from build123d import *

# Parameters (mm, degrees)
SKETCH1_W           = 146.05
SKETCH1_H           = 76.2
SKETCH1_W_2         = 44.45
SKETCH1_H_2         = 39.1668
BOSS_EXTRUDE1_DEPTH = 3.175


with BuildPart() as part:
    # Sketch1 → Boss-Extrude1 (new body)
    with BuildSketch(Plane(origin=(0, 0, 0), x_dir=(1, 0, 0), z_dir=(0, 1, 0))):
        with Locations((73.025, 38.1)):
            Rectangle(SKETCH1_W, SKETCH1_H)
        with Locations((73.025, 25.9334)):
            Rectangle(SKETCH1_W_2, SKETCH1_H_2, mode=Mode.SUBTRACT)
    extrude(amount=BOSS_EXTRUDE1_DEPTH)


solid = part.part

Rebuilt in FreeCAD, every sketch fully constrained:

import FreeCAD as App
import Part
import Sketcher

V = App.Vector
Q = App.Units.Quantity

doc = App.newDocument("Part")
params = doc.addObject("Spreadsheet::Sheet", "Params")
for row, (alias, value) in enumerate([
    ("sketch1_height", "3 in"),
    ("sketch1_width", "5.75 in"),
    ("sketch1_height2", "1.542 in"),
    ("pad1_length", "0.125 in"),
], start=1):
    params.set(f"A{row}", alias)
    params.set(f"B{row}", "=" + value)
    params.setAlias(f"B{row}", alias)

body = doc.addObject("PartDesign::Body", "Body")

# Sketch on XZ plane
sketch1 = body.newObject("Sketcher::SketchObject", "Sketch")
sketch1.AttachmentSupport = (doc.getObject("XZ_Plane"), [""])
sketch1.MapMode = "FlatFace"
sketch1.addGeometry(Part.LineSegment(V(0, -76, 0), V(0, 0, 0)), False)
sketch1.addGeometry(Part.LineSegment(V(0, 0, 0), V(146, 0, 0)), False)
sketch1.addGeometry(Part.LineSegment(V(146, 0, 0), V(146, -76, 0)), False)
sketch1.addGeometry(Part.LineSegment(V(146, -76, 0), V(0, -76, 0)), False)
sketch1.addGeometry(Part.LineSegment(V(95, -6, 0), V(51, -6, 0)), False)
sketch1.addGeometry(Part.LineSegment(V(51, -6, 0), V(51, -46, 0)), False)
sketch1.addGeometry(Part.LineSegment(V(51, -46, 0), V(95, -46, 0)), False)
sketch1.addGeometry(Part.LineSegment(V(95, -46, 0), V(95, -6, 0)), False)
sketch1.addConstraint(Sketcher.Constraint("Coincident", 0, 2, 1, 1))
sketch1.addConstraint(Sketcher.Constraint("Coincident", 1, 2, 2, 1))
sketch1.addConstraint(Sketcher.Constraint("Coincident", 2, 2, 3, 1))
sketch1.addConstraint(Sketcher.Constraint("Coincident", 3, 2, 0, 1))
sketch1.addConstraint(Sketcher.Constraint("Coincident", 4, 2, 5, 1))
sketch1.addConstraint(Sketcher.Constraint("Coincident", 5, 2, 6, 1))
sketch1.addConstraint(Sketcher.Constraint("Coincident", 6, 2, 7, 1))
sketch1.addConstraint(Sketcher.Constraint("Coincident", 7, 2, 4, 1))
sketch1.addConstraint(Sketcher.Constraint("Vertical", 0))
sketch1.addConstraint(Sketcher.Constraint("Horizontal", 1))
sketch1.addConstraint(Sketcher.Constraint("Vertical", 2))
sketch1.addConstraint(Sketcher.Constraint("Horizontal", 3))
sketch1.addConstraint(Sketcher.Constraint("Horizontal", 4))
sketch1.addConstraint(Sketcher.Constraint("Vertical", 5))
sketch1.addConstraint(Sketcher.Constraint("Horizontal", 6))
sketch1.addConstraint(Sketcher.Constraint("Vertical", 7))
sketch1.addConstraint(Sketcher.Constraint("Coincident", 0, 2, -1, 1))
sketch1.addConstraint(Sketcher.Constraint("DistanceY", 0, 1, 0, 2, Q("3 in")))
sketch1.addConstraint(Sketcher.Constraint("DistanceX", -1, 1, 4, 2, Q("2 in")))
sketch1.addConstraint(Sketcher.Constraint("DistanceX", 6, 2, 2, 2, Q("2 in")))
sketch1.addConstraint(Sketcher.Constraint("DistanceX", 1, 1, 1, 2, Q("5.75 in")))
sketch1.addConstraint(Sketcher.Constraint("DistanceY", 5, 2, 5, 1, Q("1.542 in")))
sketch1.addConstraint(Sketcher.Constraint("DistanceY", 4, 2, -1, 1, Q("0.25 in")))
sketch1.setExpression("Constraints[17]", "Params.sketch1_height")
sketch1.setExpression("Constraints[20]", "Params.sketch1_width")
sketch1.setExpression("Constraints[21]", "Params.sketch1_height2")
pad1 = body.newObject("PartDesign::Pad", "Pad")
pad1.Profile = sketch1
pad1.setExpression("Length", "Params.pad1_length")
pad1.Reversed = True

doc.recompute()
